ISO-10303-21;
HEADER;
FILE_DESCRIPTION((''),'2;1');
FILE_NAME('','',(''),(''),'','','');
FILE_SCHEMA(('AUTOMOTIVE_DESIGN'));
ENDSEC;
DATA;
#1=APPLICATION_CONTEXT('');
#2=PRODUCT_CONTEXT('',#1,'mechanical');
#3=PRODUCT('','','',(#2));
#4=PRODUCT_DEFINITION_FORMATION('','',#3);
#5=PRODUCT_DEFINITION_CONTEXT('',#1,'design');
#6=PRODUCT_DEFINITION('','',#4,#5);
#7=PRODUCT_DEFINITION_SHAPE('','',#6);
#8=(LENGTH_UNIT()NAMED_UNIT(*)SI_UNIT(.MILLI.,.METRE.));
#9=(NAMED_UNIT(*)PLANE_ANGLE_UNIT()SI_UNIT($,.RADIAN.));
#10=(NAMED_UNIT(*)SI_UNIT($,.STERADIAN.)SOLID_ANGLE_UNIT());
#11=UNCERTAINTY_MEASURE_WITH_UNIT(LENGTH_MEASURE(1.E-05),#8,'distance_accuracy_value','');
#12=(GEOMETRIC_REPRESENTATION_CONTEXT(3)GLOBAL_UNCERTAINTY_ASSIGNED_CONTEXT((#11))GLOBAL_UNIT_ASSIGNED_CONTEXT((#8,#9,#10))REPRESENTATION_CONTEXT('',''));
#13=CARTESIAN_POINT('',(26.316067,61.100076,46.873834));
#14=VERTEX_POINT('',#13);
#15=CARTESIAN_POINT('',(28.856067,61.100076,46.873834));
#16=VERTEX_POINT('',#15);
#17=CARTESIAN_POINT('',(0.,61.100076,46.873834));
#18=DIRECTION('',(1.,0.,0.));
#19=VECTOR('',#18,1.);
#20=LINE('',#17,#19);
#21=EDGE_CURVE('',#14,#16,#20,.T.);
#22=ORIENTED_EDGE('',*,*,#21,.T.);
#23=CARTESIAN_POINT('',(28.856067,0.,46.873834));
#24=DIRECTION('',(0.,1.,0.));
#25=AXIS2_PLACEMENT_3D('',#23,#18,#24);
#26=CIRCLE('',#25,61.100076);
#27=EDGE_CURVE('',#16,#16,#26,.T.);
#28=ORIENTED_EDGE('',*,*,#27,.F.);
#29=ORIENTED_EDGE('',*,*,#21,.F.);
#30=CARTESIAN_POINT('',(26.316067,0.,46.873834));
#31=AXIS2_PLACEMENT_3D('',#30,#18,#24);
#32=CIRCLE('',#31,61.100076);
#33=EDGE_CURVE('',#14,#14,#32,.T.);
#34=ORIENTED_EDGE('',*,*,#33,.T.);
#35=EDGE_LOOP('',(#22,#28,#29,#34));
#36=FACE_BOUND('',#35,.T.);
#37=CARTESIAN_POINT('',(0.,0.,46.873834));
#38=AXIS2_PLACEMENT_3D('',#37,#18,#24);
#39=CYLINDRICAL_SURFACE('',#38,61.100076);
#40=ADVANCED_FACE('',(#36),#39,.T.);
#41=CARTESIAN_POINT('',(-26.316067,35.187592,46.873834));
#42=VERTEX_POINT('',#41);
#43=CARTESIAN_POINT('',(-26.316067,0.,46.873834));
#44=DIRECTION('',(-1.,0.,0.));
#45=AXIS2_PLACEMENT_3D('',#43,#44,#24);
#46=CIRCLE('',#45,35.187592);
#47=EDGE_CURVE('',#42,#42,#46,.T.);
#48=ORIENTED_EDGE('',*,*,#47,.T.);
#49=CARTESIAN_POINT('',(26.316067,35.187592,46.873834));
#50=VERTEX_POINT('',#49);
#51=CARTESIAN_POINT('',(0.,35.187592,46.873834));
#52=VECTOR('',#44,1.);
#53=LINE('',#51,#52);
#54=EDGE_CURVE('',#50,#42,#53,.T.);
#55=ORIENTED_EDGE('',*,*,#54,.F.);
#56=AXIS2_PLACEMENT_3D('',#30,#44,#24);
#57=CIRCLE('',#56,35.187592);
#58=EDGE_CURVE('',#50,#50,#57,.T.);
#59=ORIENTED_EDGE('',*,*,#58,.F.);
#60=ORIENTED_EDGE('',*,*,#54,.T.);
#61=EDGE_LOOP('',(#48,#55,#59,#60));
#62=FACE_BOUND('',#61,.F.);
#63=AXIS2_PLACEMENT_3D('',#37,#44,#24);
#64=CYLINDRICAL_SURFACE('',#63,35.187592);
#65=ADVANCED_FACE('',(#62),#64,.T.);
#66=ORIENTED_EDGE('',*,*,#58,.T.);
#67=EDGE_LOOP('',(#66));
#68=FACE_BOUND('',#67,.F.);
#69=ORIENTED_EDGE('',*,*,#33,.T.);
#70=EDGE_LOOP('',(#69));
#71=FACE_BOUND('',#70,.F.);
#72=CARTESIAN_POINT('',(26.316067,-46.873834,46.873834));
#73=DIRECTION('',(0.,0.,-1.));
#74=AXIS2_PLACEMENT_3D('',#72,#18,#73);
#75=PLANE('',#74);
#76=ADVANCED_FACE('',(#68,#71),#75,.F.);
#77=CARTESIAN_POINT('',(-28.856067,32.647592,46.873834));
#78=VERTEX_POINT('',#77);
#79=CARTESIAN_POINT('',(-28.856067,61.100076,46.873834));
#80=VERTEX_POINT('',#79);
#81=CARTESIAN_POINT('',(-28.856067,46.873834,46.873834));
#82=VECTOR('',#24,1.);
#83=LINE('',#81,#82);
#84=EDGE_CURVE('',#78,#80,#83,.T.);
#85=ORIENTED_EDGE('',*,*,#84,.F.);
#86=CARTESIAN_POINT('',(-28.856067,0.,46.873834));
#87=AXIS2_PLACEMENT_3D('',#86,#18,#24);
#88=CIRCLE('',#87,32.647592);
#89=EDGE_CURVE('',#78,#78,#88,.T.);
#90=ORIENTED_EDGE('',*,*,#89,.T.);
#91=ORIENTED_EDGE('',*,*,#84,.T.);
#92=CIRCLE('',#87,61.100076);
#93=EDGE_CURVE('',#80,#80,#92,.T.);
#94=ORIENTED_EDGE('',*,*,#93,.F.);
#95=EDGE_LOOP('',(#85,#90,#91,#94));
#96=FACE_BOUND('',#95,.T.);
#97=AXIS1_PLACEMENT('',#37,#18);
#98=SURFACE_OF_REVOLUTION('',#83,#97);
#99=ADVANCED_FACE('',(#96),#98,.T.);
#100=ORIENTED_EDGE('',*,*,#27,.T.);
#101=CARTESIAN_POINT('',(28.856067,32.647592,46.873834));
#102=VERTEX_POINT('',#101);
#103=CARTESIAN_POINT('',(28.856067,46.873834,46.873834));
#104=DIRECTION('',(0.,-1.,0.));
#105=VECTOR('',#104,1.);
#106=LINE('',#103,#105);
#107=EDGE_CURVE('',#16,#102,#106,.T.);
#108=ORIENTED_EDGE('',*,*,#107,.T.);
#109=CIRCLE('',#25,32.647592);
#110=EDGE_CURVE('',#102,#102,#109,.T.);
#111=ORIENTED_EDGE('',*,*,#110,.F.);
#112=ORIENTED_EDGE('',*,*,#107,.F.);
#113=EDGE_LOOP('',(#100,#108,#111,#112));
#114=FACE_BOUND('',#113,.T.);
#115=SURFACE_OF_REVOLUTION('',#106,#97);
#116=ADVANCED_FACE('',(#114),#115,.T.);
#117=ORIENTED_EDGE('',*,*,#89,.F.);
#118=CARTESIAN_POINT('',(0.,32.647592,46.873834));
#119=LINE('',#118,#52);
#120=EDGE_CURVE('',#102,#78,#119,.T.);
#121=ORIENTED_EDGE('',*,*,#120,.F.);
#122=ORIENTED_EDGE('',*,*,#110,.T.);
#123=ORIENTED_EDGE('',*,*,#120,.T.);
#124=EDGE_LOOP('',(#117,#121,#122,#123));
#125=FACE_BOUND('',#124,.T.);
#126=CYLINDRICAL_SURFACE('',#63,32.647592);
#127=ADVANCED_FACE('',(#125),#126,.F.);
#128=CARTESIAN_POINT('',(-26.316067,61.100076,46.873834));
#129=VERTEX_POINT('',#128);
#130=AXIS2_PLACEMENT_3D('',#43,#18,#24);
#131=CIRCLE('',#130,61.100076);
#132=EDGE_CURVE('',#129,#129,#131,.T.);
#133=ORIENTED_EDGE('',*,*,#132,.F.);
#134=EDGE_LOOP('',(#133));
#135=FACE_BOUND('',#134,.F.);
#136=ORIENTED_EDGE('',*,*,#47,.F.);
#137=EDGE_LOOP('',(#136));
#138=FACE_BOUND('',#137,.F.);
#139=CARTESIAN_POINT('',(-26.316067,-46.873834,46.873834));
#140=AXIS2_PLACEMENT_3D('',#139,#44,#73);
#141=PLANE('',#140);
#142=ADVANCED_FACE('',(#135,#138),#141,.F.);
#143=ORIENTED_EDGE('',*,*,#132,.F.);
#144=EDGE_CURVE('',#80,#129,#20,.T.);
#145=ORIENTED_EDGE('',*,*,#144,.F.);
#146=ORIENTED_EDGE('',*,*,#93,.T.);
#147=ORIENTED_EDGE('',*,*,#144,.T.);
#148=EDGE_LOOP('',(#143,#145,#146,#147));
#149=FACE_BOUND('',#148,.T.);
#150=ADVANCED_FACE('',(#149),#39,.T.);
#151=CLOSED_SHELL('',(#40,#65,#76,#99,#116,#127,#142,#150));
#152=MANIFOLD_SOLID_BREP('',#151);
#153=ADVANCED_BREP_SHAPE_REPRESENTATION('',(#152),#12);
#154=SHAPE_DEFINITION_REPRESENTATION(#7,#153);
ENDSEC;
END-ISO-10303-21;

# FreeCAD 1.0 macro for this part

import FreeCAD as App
import Part
import Sketcher
Q = App.Units.Quantity


def faces_at(feature, points):
    """Names of the faces that lie closest to the given points."""
    faces = feature.Shape.Faces
    near = lambda p: min(range(len(faces)), key=lambda i: faces[i].distToShape(Part.Vertex(*p))[0])
    return sorted({f"Face{near(p) + 1}" for p in points})

doc = App.newDocument("Part")
body = doc.addObject("PartDesign::Body", "Body")

sketch1 = body.newObject("Sketcher::SketchObject", "Sketch")
sketch1.AttachmentSupport = (doc.getObject("XZ_Plane"), [""])
sketch1.MapMode = "FlatFace"
sketch1.addGeometry(Part.LineSegment(App.Vector(-29, 14, 0), App.Vector(-29, -14, 0)), False)
sketch1.addGeometry(Part.LineSegment(App.Vector(-29, -14, 0), App.Vector(29, -14, 0)), False)
sketch1.addGeometry(Part.LineSegment(App.Vector(29, -14, 0), App.Vector(29, 14, 0)), False)
sketch1.addGeometry(Part.LineSegment(App.Vector(29, 14, 0), App.Vector(-29, 14, 0)), False)
sketch1.addConstraint(Sketcher.Constraint("Coincident", 0, 2, 1, 1))
sketch1.addConstraint(Sketcher.Constraint("Coincident", 1, 2, 2, 1))
sketch1.addConstraint(Sketcher.Constraint("Coincident", 2, 2, 3, 1))
sketch1.addConstraint(Sketcher.Constraint("Coincident", 3, 2, 0, 1))
sketch1.addConstraint(Sketcher.Constraint("Vertical", 0))
sketch1.addConstraint(Sketcher.Constraint("Horizontal", 1))
sketch1.addConstraint(Sketcher.Constraint("Vertical", 2))
sketch1.addConstraint(Sketcher.Constraint("Horizontal", 3))
sketch1.addConstraint(Sketcher.Constraint("Symmetric", 0, 2, 2, 2, -1, 1))
sketch1.addConstraint(Sketcher.Constraint("DistanceX", 1, 1, 1, 2, Q("57.712134 mm")))
sketch1.addConstraint(Sketcher.Constraint("DistanceY", 0, 2, 0, 1, Q("28.452484 mm")))

sketch2 = body.newObject("Sketcher::SketchObject", "Sketch001")
sketch2.AttachmentSupport = (doc.getObject("YZ_Plane"), [""])
sketch2.MapMode = "FlatFace"
sketch2.addGeometry(Part.Circle(App.Vector(0, 47, 0), App.Vector(0, 0, 1), 47), False)
sketch2.addConstraint(Sketcher.Constraint("PointOnObject", 0, 3, -2))
sketch2.addConstraint(Sketcher.Constraint("Diameter", 0, Q("93.747668 mm")))
sketch2.addConstraint(Sketcher.Constraint("DistanceY", -1, 1, 0, 3, Q("46.873834 mm")))
doc.recompute()

additivepipe = body.newObject("PartDesign::AdditivePipe", "AdditivePipe")
additivepipe.Profile = sketch1
additivepipe.Spine = (sketch2, ["Edge1"])
doc.recompute()

thickness = body.newObject("PartDesign::Thickness", "Thickness")
thickness.Base = (additivepipe, faces_at(additivepipe, [(0, -61.1, 46.874)]))
thickness.Value = Q("0.1 in")
thickness.Reversed = True
thickness.Join = "Arc"

doc.recompute()
